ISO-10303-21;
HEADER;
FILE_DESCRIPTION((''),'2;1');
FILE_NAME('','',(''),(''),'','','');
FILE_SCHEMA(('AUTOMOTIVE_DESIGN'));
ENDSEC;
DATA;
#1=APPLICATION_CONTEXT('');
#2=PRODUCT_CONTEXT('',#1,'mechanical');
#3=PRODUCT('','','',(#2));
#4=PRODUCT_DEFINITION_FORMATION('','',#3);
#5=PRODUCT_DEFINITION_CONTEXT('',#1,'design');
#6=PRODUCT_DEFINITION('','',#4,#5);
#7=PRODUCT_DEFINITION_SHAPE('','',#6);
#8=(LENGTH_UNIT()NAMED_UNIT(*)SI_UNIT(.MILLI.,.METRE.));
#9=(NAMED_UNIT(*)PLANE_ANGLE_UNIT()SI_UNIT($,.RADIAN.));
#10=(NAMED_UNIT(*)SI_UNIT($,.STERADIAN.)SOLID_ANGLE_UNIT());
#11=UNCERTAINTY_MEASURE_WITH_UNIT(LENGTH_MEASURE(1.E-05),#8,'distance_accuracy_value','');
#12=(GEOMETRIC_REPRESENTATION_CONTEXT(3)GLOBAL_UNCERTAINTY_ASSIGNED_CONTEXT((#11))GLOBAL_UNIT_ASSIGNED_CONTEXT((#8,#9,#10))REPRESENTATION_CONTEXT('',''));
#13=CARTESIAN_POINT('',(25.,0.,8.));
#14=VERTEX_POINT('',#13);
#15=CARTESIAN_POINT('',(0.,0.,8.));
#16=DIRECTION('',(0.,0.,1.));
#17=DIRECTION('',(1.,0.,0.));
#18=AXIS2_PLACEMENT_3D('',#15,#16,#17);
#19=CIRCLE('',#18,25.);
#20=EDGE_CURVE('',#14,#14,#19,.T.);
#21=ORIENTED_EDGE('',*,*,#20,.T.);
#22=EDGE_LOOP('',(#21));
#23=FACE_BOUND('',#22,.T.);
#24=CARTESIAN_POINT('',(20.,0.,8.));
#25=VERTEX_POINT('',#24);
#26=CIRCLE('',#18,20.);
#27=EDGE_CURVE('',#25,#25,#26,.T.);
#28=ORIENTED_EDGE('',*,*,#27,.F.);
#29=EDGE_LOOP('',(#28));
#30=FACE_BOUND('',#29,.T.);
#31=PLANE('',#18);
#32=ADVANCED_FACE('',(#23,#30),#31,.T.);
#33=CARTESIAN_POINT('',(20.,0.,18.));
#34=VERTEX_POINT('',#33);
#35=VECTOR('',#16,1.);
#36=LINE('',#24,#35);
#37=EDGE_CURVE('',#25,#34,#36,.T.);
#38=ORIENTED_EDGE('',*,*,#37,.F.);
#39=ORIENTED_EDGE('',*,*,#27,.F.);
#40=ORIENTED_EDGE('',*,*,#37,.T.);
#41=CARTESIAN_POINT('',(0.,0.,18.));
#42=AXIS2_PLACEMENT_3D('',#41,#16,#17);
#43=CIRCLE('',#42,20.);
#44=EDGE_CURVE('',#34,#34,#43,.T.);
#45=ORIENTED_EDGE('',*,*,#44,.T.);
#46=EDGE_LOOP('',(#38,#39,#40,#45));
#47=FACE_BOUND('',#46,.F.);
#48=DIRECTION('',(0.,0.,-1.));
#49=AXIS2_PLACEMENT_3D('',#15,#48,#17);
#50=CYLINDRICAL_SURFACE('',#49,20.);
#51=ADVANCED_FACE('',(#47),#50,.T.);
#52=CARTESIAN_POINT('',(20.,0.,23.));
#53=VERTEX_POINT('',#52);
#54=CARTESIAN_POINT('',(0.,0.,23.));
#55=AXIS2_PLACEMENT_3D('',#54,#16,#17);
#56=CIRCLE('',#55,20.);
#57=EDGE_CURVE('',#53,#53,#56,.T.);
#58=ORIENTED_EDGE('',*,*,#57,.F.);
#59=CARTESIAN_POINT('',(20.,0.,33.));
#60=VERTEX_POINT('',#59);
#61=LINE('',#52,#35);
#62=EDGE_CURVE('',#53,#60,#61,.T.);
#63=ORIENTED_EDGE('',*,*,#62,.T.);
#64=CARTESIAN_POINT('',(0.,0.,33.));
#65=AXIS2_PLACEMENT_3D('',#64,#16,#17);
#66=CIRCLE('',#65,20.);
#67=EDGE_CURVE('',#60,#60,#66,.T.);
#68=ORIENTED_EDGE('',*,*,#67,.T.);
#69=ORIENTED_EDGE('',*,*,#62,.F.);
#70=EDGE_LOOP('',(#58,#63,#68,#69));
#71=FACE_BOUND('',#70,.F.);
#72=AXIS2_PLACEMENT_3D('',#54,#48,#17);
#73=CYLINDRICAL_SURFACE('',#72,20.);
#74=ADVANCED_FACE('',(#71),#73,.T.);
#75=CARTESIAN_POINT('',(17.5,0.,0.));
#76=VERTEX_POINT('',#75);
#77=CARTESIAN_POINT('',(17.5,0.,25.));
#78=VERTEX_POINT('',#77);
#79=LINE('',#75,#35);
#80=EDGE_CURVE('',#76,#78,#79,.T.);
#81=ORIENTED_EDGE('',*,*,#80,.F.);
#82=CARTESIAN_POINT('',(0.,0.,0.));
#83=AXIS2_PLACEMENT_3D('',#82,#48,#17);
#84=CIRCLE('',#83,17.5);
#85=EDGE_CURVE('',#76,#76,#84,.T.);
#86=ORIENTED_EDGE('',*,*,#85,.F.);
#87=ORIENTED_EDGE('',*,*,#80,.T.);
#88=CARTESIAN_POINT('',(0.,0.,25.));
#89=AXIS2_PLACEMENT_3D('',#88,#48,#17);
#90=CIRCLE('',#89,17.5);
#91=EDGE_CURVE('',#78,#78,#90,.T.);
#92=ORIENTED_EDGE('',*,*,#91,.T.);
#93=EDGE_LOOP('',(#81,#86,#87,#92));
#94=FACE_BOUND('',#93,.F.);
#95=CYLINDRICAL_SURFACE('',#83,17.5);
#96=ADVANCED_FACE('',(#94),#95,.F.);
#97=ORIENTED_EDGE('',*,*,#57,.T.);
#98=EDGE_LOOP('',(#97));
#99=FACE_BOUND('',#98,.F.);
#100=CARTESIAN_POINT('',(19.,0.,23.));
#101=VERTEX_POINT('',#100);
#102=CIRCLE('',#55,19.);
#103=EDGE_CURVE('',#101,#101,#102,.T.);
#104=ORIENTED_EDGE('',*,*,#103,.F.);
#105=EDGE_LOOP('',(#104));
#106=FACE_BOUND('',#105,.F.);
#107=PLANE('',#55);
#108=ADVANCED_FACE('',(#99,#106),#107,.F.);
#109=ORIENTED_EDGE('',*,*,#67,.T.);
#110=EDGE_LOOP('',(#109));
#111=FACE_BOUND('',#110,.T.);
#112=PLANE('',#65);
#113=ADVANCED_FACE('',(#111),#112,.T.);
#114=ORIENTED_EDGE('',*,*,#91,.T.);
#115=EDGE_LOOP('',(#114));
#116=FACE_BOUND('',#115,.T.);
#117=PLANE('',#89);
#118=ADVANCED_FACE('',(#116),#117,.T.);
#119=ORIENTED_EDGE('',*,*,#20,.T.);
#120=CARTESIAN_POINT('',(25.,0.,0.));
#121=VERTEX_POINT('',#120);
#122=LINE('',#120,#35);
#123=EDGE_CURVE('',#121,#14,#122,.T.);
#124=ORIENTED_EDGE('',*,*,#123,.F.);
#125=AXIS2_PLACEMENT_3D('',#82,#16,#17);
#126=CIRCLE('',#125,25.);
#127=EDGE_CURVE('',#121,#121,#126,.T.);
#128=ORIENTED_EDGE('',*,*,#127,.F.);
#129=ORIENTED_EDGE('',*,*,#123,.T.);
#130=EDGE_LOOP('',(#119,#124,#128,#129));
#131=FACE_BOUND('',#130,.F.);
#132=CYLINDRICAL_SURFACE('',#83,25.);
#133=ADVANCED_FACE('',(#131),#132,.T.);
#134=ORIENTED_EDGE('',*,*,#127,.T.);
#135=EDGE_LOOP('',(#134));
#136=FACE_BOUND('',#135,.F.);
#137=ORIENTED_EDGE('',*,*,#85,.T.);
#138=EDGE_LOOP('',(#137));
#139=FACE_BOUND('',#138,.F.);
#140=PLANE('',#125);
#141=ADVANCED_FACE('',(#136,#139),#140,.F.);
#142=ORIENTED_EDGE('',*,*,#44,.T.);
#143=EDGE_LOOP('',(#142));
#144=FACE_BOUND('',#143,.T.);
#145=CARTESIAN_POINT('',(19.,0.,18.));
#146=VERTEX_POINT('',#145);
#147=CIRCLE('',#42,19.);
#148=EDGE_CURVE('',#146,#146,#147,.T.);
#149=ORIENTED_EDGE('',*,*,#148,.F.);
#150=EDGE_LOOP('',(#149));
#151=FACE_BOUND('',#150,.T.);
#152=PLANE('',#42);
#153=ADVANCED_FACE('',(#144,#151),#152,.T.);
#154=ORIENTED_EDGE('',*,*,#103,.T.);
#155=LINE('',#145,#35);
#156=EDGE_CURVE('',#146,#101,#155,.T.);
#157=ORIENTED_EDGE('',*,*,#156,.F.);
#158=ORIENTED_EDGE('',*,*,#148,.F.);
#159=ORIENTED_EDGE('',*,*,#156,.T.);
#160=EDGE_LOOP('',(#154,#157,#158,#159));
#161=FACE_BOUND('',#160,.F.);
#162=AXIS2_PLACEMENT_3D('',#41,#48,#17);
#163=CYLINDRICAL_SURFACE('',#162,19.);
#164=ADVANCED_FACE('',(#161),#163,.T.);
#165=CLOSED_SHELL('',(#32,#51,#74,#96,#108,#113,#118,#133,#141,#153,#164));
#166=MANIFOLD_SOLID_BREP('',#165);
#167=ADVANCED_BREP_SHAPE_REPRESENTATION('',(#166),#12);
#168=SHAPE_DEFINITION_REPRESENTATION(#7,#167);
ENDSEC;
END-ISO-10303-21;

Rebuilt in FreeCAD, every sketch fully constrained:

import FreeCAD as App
import Part
import Sketcher
from FreeCAD import Vector
Q = App.Units.Quantity

doc = App.newDocument("Part")
body = doc.addObject("PartDesign::Body", "Body")

# Sketch on XY plane
sketch1 = doc.addObject("Sketcher::SketchObject", "Sketch")
body.addObject(sketch1)
sketch1.AttachmentSupport = (doc.XY_Plane, [""])
sketch1.MapMode = "FlatFace"
sketch1.addGeometry(Part.Circle(Vector(0, 0, 0), Vector(0, 0, 1), 25), False)
sketch1.addConstraint([
    Sketcher.Constraint("Coincident", 0, 3, -1, 1),
    Sketcher.Constraint("Diameter", 0, Q("50 mm")),
])
pad1 = doc.addObject("PartDesign::Pad", "Pad")
body.addObject(pad1)
pad1.Profile = sketch1
pad1.Length = 8
body2 = doc.addObject("PartDesign::Body", "Body001")

# Sketch on XY plane
sketch2 = doc.addObject("Sketcher::SketchObject", "Sketch001")
body2.addObject(sketch2)
sketch2.AttachmentSupport = (doc.getObject("XY_Plane001"), [""])
sketch2.MapMode = "FlatFace"
sketch2.AttachmentOffset = App.Placement(Vector(0, 0, 23), App.Rotation())
sketch2.addGeometry(Part.Circle(Vector(0, 0, 0), Vector(0, 0, 1), 20), False)
sketch2.addConstraint([
    Sketcher.Constraint("Coincident", 0, 3, -1, 1),
    Sketcher.Constraint("Diameter", 0, Q("40 mm")),
])
pad2 = doc.addObject("PartDesign::Pad", "Pad001")
body2.addObject(pad2)
pad2.Profile = sketch2
pad2.Length = 10

# Sketch on XY plane
sketch3 = doc.addObject("Sketcher::SketchObject", "Sketch002")
body2.addObject(sketch3)
sketch3.AttachmentSupport = (doc.getObject("XY_Plane001"), [""])
sketch3.MapMode = "FlatFace"
sketch3.AttachmentOffset = App.Placement(Vector(0, 0, 18), App.Rotation())
sketch3.addGeometry(Part.Circle(Vector(0, 0, 0), Vector(0, 0, 1), 19), False)
sketch3.addConstraint([
    Sketcher.Constraint("Coincident", 0, 3, -1, 1),
    Sketcher.Constraint("Diameter", 0, Q("38 mm")),
])
pad3 = doc.addObject("PartDesign::Pad", "Pad002")
body2.addObject(pad3)
pad3.Profile = sketch3
pad3.Length = 5
body.AllowCompound = True
doc.recompute()

boolean = doc.addObject("PartDesign::Boolean", "Boolean")
body.addObject(boolean)
boolean.Type = "Fuse"
boolean.addObjects([body2])

# Sketch on XY plane
sketch4 = doc.addObject("Sketcher::SketchObject", "Sketch003")
body.addObject(sketch4)
sketch4.AttachmentSupport = (doc.XY_Plane, [""])
sketch4.MapMode = "FlatFace"
sketch4.AttachmentOffset = App.Placement(Vector(0, 0, 8), App.Rotation())
sketch4.addGeometry(Part.Circle(Vector(0, 0, 0), Vector(0, 0, 1), 20), False)
sketch4.addConstraint([
    Sketcher.Constraint("Coincident", 0, 3, -1, 1),
    Sketcher.Constraint("Diameter", 0, Q("40 mm")),
])
pad4 = doc.addObject("PartDesign::Pad", "Pad003")
body.addObject(pad4)
pad4.Profile = sketch4
pad4.Length = 10

# Sketch on XY plane
sketch5 = doc.addObject("Sketcher::SketchObject", "Sketch004")
body.addObject(sketch5)
sketch5.AttachmentSupport = (doc.XY_Plane, [""])
sketch5.MapMode = "FlatFace"
sketch5.addGeometry(Part.Circle(Vector(0, 0, 0), Vector(0, 0, 1), 17.5), False)
sketch5.addConstraint([
    Sketcher.Constraint("Coincident", 0, 3, -1, 1),
    Sketcher.Constraint("Diameter", 0, Q("35 mm")),
])
pocket1 = doc.addObject("PartDesign::Pocket", "Pocket")
body.addObject(pocket1)
pocket1.Profile = sketch5
pocket1.Length = 25
pocket1.Reversed = True

doc.recompute()
